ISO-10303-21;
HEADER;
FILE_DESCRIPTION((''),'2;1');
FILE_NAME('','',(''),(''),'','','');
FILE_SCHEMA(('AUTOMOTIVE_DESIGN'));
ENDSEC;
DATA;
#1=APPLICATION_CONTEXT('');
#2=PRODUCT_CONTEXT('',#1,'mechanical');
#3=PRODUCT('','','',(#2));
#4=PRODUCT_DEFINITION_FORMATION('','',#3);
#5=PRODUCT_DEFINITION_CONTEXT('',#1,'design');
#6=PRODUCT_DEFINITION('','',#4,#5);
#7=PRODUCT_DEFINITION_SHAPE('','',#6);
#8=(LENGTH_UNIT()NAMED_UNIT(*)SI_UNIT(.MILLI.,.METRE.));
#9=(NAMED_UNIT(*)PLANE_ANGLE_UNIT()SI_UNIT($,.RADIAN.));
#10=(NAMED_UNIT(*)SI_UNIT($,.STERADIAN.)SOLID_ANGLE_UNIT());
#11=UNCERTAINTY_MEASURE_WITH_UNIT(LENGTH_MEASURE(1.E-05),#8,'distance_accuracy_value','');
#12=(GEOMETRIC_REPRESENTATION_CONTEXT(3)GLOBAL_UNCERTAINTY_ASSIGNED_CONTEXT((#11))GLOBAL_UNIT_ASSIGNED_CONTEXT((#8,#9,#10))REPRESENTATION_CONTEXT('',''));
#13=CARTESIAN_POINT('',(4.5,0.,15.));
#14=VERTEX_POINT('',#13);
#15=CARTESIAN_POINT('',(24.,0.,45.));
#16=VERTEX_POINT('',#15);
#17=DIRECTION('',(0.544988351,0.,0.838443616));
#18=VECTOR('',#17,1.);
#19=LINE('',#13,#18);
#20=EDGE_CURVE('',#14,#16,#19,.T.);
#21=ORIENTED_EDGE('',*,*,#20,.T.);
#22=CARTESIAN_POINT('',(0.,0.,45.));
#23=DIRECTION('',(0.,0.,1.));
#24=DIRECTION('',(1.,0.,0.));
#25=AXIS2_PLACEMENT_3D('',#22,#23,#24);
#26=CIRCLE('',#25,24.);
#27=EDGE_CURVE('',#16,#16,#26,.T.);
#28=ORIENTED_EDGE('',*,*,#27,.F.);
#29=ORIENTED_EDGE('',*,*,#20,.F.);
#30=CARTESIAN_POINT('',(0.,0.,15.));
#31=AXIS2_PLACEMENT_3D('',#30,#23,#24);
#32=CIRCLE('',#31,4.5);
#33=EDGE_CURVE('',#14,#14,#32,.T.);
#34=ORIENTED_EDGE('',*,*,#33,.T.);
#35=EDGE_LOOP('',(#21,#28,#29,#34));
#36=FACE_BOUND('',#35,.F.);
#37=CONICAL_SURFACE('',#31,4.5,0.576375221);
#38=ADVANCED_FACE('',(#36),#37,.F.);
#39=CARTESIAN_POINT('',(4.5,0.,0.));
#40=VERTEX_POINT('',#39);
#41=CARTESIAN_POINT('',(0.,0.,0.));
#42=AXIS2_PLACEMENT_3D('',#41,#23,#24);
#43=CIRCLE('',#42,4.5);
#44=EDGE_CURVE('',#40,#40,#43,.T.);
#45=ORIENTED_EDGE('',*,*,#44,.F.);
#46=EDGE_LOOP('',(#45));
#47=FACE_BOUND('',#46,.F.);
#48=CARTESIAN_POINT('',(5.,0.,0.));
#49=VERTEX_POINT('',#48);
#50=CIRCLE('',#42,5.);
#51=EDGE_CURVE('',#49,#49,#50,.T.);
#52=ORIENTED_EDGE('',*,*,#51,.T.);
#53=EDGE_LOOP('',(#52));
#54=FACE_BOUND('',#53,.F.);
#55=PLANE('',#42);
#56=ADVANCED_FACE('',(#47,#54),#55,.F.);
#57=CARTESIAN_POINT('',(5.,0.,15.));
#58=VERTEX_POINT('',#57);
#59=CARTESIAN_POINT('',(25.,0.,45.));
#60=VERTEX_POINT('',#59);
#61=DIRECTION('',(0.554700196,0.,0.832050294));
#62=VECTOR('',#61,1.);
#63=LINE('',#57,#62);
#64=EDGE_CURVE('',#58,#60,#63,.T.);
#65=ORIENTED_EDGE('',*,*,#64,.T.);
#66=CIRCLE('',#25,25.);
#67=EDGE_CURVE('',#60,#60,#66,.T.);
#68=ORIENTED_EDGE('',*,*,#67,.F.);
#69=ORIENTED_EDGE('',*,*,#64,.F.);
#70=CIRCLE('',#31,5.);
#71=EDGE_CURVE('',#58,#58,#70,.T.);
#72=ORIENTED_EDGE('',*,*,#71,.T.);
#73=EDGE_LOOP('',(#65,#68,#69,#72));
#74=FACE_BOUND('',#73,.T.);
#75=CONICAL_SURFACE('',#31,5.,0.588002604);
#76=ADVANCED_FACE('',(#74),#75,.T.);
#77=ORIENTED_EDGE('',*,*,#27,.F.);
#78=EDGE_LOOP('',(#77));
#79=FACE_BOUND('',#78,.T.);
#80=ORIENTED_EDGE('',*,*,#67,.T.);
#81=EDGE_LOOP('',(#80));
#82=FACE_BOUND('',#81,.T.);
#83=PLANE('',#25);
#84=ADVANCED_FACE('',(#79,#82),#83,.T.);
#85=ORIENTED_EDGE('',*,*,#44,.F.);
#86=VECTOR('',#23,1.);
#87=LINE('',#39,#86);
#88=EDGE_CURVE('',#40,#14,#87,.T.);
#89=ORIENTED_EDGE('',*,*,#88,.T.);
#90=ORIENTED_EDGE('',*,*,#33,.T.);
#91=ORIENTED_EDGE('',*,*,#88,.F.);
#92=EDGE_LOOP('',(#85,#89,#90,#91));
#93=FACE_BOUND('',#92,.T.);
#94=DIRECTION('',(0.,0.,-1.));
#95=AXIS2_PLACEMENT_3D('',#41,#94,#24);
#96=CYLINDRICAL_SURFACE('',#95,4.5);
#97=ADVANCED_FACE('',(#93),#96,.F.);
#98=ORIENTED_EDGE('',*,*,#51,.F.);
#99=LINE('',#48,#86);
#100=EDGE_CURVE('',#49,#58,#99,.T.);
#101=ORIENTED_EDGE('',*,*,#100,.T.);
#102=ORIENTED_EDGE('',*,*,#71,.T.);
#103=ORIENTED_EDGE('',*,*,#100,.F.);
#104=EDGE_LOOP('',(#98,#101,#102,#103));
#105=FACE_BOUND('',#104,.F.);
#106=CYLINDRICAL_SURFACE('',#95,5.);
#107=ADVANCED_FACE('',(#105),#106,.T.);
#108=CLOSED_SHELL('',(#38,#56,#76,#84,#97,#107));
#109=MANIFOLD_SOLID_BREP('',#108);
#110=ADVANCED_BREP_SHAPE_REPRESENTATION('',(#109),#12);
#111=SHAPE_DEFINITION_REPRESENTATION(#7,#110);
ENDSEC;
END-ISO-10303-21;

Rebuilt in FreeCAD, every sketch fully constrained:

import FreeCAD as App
import Part
import Sketcher
from FreeCAD import Vector
Q = App.Units.Quantity

doc = App.newDocument("Part")
body = doc.addObject("PartDesign::Body", "Body")

# Sketch on XY plane
sketch1 = body.newObject("Sketcher::SketchObject", "Sketch")
sketch1.AttachmentSupport = (doc.getObject("XY_Plane"), [""])
sketch1.MapMode = "FlatFace"
sketch1.addGeometry(Part.Circle(Vector(0, 0, 0), Vector(0, 0, 1), 4.5), False)
sketch1.addConstraint([
    Sketcher.Constraint("Coincident", 0, 3, -1, 1),
    Sketcher.Constraint("Diameter", 0, Q("9 mm")),
])
pad1 = body.newObject("PartDesign::Pad", "Pad")
pad1.Profile = sketch1
pad1.Length = 15
body2 = doc.addObject("PartDesign::Body", "Body001")

# Sketch on XY plane
sketch2 = body2.newObject("Sketcher::SketchObject", "Sketch001")
sketch2.AttachmentSupport = (doc.getObject("XY_Plane001"), [""])
sketch2.MapMode = "FlatFace"
sketch2.addGeometry(Part.Circle(Vector(0, 0, 0), Vector(0, 0, 1), 5), False)
sketch2.addConstraint([
    Sketcher.Constraint("Coincident", 0, 3, -1, 1),
    Sketcher.Constraint("Diameter", 0, Q("10 mm")),
])
pad2 = body2.newObject("PartDesign::Pad", "Pad001")
pad2.Profile = sketch2
pad2.Length = 15
doc.recompute()

boolean = body2.newObject("PartDesign::Boolean", "Boolean")
boolean.Type = "Cut"
boolean.addObjects([body])
body3 = doc.addObject("PartDesign::Body", "Body002")

# Sketch on XZ plane
sketch3 = body3.newObject("Sketcher::SketchObject", "Sketch002")
sketch3.AttachmentSupport = (doc.getObject("XZ_Plane002"), [""])
sketch3.MapMode = "FlatFace"
sketch3.addGeometry([
    Part.LineSegment(Vector(0, 15, 0), Vector(4.5, 15, 0)),
    Part.LineSegment(Vector(4.5, 15, 0), Vector(24, 45, 0)),
    Part.LineSegment(Vector(24, 45, 0), Vector(0, 45, 0)),
    Part.LineSegment(Vector(0, 45, 0), Vector(0, 15, 0)),
], False)
sketch3.addConstraint([
    Sketcher.Constraint("Coincident", 0, 2, 1, 1),
    Sketcher.Constraint("Coincident", 1, 2, 2, 1),
    Sketcher.Constraint("Coincident", 2, 2, 3, 1),
    Sketcher.Constraint("Coincident", 3, 2, 0, 1),
    Sketcher.Constraint("Horizontal", 0),
    Sketcher.Constraint("Horizontal", 2),
    Sketcher.Constraint("Vertical", 3),
    Sketcher.Constraint("PointOnObject", 2, 2, -2),
    Sketcher.Constraint("DistanceX", 2, 2, 2, 1, Q("24 mm")),
    Sketcher.Constraint("DistanceY", 3, 2, 3, 1, Q("30 mm")),
    Sketcher.Constraint("DistanceX", 0, 1, 0, 2, Q("4.5 mm")),
    Sketcher.Constraint("DistanceY", -1, 1, 0, 2, Q("15 mm")),
])
revolution = body3.newObject("PartDesign::Revolution", "Revolution")
revolution.Profile = sketch3
revolution.ReferenceAxis = (sketch3, ["V_Axis"])
revolution.Angle = 360
body4 = doc.addObject("PartDesign::Body", "Body003")

# Sketch on XZ plane
sketch4 = body4.newObject("Sketcher::SketchObject", "Sketch003")
sketch4.AttachmentSupport = (doc.getObject("XZ_Plane003"), [""])
sketch4.MapMode = "FlatFace"
sketch4.addGeometry([
    Part.LineSegment(Vector(0, 15, 0), Vector(5, 15, 0)),
    Part.LineSegment(Vector(5, 15, 0), Vector(25, 45, 0)),
    Part.LineSegment(Vector(25, 45, 0), Vector(0, 45, 0)),
    Part.LineSegment(Vector(0, 45, 0), Vector(0, 15, 0)),
], False)
sketch4.addConstraint([
    Sketcher.Constraint("Coincident", 0, 2, 1, 1),
    Sketcher.Constraint("Coincident", 1, 2, 2, 1),
    Sketcher.Constraint("Coincident", 2, 2, 3, 1),
    Sketcher.Constraint("Coincident", 3, 2, 0, 1),
    Sketcher.Constraint("Horizontal", 0),
    Sketcher.Constraint("Horizontal", 2),
    Sketcher.Constraint("Vertical", 3),
    Sketcher.Constraint("PointOnObject", 2, 2, -2),
    Sketcher.Constraint("DistanceX", 0, 1, 0, 2, Q("5 mm")),
    Sketcher.Constraint("DistanceX", 2, 2, 2, 1, Q("25 mm")),
    Sketcher.Constraint("DistanceY", 3, 2, 3, 1, Q("30 mm")),
    Sketcher.Constraint("DistanceY", -1, 1, 0, 2, Q("15 mm")),
])
revolution2 = body4.newObject("PartDesign::Revolution", "Revolution001")
revolution2.Profile = sketch4
revolution2.ReferenceAxis = (sketch4, ["V_Axis"])
revolution2.Angle = 360
doc.recompute()

boolean2 = body4.newObject("PartDesign::Boolean", "Boolean001")
boolean2.Type = "Cut"
boolean2.addObjects([body3])
doc.recompute()

boolean3 = body4.newObject("PartDesign::Boolean", "Boolean002")
boolean3.Type = "Fuse"
boolean3.addObjects([body2])

doc.recompute()
